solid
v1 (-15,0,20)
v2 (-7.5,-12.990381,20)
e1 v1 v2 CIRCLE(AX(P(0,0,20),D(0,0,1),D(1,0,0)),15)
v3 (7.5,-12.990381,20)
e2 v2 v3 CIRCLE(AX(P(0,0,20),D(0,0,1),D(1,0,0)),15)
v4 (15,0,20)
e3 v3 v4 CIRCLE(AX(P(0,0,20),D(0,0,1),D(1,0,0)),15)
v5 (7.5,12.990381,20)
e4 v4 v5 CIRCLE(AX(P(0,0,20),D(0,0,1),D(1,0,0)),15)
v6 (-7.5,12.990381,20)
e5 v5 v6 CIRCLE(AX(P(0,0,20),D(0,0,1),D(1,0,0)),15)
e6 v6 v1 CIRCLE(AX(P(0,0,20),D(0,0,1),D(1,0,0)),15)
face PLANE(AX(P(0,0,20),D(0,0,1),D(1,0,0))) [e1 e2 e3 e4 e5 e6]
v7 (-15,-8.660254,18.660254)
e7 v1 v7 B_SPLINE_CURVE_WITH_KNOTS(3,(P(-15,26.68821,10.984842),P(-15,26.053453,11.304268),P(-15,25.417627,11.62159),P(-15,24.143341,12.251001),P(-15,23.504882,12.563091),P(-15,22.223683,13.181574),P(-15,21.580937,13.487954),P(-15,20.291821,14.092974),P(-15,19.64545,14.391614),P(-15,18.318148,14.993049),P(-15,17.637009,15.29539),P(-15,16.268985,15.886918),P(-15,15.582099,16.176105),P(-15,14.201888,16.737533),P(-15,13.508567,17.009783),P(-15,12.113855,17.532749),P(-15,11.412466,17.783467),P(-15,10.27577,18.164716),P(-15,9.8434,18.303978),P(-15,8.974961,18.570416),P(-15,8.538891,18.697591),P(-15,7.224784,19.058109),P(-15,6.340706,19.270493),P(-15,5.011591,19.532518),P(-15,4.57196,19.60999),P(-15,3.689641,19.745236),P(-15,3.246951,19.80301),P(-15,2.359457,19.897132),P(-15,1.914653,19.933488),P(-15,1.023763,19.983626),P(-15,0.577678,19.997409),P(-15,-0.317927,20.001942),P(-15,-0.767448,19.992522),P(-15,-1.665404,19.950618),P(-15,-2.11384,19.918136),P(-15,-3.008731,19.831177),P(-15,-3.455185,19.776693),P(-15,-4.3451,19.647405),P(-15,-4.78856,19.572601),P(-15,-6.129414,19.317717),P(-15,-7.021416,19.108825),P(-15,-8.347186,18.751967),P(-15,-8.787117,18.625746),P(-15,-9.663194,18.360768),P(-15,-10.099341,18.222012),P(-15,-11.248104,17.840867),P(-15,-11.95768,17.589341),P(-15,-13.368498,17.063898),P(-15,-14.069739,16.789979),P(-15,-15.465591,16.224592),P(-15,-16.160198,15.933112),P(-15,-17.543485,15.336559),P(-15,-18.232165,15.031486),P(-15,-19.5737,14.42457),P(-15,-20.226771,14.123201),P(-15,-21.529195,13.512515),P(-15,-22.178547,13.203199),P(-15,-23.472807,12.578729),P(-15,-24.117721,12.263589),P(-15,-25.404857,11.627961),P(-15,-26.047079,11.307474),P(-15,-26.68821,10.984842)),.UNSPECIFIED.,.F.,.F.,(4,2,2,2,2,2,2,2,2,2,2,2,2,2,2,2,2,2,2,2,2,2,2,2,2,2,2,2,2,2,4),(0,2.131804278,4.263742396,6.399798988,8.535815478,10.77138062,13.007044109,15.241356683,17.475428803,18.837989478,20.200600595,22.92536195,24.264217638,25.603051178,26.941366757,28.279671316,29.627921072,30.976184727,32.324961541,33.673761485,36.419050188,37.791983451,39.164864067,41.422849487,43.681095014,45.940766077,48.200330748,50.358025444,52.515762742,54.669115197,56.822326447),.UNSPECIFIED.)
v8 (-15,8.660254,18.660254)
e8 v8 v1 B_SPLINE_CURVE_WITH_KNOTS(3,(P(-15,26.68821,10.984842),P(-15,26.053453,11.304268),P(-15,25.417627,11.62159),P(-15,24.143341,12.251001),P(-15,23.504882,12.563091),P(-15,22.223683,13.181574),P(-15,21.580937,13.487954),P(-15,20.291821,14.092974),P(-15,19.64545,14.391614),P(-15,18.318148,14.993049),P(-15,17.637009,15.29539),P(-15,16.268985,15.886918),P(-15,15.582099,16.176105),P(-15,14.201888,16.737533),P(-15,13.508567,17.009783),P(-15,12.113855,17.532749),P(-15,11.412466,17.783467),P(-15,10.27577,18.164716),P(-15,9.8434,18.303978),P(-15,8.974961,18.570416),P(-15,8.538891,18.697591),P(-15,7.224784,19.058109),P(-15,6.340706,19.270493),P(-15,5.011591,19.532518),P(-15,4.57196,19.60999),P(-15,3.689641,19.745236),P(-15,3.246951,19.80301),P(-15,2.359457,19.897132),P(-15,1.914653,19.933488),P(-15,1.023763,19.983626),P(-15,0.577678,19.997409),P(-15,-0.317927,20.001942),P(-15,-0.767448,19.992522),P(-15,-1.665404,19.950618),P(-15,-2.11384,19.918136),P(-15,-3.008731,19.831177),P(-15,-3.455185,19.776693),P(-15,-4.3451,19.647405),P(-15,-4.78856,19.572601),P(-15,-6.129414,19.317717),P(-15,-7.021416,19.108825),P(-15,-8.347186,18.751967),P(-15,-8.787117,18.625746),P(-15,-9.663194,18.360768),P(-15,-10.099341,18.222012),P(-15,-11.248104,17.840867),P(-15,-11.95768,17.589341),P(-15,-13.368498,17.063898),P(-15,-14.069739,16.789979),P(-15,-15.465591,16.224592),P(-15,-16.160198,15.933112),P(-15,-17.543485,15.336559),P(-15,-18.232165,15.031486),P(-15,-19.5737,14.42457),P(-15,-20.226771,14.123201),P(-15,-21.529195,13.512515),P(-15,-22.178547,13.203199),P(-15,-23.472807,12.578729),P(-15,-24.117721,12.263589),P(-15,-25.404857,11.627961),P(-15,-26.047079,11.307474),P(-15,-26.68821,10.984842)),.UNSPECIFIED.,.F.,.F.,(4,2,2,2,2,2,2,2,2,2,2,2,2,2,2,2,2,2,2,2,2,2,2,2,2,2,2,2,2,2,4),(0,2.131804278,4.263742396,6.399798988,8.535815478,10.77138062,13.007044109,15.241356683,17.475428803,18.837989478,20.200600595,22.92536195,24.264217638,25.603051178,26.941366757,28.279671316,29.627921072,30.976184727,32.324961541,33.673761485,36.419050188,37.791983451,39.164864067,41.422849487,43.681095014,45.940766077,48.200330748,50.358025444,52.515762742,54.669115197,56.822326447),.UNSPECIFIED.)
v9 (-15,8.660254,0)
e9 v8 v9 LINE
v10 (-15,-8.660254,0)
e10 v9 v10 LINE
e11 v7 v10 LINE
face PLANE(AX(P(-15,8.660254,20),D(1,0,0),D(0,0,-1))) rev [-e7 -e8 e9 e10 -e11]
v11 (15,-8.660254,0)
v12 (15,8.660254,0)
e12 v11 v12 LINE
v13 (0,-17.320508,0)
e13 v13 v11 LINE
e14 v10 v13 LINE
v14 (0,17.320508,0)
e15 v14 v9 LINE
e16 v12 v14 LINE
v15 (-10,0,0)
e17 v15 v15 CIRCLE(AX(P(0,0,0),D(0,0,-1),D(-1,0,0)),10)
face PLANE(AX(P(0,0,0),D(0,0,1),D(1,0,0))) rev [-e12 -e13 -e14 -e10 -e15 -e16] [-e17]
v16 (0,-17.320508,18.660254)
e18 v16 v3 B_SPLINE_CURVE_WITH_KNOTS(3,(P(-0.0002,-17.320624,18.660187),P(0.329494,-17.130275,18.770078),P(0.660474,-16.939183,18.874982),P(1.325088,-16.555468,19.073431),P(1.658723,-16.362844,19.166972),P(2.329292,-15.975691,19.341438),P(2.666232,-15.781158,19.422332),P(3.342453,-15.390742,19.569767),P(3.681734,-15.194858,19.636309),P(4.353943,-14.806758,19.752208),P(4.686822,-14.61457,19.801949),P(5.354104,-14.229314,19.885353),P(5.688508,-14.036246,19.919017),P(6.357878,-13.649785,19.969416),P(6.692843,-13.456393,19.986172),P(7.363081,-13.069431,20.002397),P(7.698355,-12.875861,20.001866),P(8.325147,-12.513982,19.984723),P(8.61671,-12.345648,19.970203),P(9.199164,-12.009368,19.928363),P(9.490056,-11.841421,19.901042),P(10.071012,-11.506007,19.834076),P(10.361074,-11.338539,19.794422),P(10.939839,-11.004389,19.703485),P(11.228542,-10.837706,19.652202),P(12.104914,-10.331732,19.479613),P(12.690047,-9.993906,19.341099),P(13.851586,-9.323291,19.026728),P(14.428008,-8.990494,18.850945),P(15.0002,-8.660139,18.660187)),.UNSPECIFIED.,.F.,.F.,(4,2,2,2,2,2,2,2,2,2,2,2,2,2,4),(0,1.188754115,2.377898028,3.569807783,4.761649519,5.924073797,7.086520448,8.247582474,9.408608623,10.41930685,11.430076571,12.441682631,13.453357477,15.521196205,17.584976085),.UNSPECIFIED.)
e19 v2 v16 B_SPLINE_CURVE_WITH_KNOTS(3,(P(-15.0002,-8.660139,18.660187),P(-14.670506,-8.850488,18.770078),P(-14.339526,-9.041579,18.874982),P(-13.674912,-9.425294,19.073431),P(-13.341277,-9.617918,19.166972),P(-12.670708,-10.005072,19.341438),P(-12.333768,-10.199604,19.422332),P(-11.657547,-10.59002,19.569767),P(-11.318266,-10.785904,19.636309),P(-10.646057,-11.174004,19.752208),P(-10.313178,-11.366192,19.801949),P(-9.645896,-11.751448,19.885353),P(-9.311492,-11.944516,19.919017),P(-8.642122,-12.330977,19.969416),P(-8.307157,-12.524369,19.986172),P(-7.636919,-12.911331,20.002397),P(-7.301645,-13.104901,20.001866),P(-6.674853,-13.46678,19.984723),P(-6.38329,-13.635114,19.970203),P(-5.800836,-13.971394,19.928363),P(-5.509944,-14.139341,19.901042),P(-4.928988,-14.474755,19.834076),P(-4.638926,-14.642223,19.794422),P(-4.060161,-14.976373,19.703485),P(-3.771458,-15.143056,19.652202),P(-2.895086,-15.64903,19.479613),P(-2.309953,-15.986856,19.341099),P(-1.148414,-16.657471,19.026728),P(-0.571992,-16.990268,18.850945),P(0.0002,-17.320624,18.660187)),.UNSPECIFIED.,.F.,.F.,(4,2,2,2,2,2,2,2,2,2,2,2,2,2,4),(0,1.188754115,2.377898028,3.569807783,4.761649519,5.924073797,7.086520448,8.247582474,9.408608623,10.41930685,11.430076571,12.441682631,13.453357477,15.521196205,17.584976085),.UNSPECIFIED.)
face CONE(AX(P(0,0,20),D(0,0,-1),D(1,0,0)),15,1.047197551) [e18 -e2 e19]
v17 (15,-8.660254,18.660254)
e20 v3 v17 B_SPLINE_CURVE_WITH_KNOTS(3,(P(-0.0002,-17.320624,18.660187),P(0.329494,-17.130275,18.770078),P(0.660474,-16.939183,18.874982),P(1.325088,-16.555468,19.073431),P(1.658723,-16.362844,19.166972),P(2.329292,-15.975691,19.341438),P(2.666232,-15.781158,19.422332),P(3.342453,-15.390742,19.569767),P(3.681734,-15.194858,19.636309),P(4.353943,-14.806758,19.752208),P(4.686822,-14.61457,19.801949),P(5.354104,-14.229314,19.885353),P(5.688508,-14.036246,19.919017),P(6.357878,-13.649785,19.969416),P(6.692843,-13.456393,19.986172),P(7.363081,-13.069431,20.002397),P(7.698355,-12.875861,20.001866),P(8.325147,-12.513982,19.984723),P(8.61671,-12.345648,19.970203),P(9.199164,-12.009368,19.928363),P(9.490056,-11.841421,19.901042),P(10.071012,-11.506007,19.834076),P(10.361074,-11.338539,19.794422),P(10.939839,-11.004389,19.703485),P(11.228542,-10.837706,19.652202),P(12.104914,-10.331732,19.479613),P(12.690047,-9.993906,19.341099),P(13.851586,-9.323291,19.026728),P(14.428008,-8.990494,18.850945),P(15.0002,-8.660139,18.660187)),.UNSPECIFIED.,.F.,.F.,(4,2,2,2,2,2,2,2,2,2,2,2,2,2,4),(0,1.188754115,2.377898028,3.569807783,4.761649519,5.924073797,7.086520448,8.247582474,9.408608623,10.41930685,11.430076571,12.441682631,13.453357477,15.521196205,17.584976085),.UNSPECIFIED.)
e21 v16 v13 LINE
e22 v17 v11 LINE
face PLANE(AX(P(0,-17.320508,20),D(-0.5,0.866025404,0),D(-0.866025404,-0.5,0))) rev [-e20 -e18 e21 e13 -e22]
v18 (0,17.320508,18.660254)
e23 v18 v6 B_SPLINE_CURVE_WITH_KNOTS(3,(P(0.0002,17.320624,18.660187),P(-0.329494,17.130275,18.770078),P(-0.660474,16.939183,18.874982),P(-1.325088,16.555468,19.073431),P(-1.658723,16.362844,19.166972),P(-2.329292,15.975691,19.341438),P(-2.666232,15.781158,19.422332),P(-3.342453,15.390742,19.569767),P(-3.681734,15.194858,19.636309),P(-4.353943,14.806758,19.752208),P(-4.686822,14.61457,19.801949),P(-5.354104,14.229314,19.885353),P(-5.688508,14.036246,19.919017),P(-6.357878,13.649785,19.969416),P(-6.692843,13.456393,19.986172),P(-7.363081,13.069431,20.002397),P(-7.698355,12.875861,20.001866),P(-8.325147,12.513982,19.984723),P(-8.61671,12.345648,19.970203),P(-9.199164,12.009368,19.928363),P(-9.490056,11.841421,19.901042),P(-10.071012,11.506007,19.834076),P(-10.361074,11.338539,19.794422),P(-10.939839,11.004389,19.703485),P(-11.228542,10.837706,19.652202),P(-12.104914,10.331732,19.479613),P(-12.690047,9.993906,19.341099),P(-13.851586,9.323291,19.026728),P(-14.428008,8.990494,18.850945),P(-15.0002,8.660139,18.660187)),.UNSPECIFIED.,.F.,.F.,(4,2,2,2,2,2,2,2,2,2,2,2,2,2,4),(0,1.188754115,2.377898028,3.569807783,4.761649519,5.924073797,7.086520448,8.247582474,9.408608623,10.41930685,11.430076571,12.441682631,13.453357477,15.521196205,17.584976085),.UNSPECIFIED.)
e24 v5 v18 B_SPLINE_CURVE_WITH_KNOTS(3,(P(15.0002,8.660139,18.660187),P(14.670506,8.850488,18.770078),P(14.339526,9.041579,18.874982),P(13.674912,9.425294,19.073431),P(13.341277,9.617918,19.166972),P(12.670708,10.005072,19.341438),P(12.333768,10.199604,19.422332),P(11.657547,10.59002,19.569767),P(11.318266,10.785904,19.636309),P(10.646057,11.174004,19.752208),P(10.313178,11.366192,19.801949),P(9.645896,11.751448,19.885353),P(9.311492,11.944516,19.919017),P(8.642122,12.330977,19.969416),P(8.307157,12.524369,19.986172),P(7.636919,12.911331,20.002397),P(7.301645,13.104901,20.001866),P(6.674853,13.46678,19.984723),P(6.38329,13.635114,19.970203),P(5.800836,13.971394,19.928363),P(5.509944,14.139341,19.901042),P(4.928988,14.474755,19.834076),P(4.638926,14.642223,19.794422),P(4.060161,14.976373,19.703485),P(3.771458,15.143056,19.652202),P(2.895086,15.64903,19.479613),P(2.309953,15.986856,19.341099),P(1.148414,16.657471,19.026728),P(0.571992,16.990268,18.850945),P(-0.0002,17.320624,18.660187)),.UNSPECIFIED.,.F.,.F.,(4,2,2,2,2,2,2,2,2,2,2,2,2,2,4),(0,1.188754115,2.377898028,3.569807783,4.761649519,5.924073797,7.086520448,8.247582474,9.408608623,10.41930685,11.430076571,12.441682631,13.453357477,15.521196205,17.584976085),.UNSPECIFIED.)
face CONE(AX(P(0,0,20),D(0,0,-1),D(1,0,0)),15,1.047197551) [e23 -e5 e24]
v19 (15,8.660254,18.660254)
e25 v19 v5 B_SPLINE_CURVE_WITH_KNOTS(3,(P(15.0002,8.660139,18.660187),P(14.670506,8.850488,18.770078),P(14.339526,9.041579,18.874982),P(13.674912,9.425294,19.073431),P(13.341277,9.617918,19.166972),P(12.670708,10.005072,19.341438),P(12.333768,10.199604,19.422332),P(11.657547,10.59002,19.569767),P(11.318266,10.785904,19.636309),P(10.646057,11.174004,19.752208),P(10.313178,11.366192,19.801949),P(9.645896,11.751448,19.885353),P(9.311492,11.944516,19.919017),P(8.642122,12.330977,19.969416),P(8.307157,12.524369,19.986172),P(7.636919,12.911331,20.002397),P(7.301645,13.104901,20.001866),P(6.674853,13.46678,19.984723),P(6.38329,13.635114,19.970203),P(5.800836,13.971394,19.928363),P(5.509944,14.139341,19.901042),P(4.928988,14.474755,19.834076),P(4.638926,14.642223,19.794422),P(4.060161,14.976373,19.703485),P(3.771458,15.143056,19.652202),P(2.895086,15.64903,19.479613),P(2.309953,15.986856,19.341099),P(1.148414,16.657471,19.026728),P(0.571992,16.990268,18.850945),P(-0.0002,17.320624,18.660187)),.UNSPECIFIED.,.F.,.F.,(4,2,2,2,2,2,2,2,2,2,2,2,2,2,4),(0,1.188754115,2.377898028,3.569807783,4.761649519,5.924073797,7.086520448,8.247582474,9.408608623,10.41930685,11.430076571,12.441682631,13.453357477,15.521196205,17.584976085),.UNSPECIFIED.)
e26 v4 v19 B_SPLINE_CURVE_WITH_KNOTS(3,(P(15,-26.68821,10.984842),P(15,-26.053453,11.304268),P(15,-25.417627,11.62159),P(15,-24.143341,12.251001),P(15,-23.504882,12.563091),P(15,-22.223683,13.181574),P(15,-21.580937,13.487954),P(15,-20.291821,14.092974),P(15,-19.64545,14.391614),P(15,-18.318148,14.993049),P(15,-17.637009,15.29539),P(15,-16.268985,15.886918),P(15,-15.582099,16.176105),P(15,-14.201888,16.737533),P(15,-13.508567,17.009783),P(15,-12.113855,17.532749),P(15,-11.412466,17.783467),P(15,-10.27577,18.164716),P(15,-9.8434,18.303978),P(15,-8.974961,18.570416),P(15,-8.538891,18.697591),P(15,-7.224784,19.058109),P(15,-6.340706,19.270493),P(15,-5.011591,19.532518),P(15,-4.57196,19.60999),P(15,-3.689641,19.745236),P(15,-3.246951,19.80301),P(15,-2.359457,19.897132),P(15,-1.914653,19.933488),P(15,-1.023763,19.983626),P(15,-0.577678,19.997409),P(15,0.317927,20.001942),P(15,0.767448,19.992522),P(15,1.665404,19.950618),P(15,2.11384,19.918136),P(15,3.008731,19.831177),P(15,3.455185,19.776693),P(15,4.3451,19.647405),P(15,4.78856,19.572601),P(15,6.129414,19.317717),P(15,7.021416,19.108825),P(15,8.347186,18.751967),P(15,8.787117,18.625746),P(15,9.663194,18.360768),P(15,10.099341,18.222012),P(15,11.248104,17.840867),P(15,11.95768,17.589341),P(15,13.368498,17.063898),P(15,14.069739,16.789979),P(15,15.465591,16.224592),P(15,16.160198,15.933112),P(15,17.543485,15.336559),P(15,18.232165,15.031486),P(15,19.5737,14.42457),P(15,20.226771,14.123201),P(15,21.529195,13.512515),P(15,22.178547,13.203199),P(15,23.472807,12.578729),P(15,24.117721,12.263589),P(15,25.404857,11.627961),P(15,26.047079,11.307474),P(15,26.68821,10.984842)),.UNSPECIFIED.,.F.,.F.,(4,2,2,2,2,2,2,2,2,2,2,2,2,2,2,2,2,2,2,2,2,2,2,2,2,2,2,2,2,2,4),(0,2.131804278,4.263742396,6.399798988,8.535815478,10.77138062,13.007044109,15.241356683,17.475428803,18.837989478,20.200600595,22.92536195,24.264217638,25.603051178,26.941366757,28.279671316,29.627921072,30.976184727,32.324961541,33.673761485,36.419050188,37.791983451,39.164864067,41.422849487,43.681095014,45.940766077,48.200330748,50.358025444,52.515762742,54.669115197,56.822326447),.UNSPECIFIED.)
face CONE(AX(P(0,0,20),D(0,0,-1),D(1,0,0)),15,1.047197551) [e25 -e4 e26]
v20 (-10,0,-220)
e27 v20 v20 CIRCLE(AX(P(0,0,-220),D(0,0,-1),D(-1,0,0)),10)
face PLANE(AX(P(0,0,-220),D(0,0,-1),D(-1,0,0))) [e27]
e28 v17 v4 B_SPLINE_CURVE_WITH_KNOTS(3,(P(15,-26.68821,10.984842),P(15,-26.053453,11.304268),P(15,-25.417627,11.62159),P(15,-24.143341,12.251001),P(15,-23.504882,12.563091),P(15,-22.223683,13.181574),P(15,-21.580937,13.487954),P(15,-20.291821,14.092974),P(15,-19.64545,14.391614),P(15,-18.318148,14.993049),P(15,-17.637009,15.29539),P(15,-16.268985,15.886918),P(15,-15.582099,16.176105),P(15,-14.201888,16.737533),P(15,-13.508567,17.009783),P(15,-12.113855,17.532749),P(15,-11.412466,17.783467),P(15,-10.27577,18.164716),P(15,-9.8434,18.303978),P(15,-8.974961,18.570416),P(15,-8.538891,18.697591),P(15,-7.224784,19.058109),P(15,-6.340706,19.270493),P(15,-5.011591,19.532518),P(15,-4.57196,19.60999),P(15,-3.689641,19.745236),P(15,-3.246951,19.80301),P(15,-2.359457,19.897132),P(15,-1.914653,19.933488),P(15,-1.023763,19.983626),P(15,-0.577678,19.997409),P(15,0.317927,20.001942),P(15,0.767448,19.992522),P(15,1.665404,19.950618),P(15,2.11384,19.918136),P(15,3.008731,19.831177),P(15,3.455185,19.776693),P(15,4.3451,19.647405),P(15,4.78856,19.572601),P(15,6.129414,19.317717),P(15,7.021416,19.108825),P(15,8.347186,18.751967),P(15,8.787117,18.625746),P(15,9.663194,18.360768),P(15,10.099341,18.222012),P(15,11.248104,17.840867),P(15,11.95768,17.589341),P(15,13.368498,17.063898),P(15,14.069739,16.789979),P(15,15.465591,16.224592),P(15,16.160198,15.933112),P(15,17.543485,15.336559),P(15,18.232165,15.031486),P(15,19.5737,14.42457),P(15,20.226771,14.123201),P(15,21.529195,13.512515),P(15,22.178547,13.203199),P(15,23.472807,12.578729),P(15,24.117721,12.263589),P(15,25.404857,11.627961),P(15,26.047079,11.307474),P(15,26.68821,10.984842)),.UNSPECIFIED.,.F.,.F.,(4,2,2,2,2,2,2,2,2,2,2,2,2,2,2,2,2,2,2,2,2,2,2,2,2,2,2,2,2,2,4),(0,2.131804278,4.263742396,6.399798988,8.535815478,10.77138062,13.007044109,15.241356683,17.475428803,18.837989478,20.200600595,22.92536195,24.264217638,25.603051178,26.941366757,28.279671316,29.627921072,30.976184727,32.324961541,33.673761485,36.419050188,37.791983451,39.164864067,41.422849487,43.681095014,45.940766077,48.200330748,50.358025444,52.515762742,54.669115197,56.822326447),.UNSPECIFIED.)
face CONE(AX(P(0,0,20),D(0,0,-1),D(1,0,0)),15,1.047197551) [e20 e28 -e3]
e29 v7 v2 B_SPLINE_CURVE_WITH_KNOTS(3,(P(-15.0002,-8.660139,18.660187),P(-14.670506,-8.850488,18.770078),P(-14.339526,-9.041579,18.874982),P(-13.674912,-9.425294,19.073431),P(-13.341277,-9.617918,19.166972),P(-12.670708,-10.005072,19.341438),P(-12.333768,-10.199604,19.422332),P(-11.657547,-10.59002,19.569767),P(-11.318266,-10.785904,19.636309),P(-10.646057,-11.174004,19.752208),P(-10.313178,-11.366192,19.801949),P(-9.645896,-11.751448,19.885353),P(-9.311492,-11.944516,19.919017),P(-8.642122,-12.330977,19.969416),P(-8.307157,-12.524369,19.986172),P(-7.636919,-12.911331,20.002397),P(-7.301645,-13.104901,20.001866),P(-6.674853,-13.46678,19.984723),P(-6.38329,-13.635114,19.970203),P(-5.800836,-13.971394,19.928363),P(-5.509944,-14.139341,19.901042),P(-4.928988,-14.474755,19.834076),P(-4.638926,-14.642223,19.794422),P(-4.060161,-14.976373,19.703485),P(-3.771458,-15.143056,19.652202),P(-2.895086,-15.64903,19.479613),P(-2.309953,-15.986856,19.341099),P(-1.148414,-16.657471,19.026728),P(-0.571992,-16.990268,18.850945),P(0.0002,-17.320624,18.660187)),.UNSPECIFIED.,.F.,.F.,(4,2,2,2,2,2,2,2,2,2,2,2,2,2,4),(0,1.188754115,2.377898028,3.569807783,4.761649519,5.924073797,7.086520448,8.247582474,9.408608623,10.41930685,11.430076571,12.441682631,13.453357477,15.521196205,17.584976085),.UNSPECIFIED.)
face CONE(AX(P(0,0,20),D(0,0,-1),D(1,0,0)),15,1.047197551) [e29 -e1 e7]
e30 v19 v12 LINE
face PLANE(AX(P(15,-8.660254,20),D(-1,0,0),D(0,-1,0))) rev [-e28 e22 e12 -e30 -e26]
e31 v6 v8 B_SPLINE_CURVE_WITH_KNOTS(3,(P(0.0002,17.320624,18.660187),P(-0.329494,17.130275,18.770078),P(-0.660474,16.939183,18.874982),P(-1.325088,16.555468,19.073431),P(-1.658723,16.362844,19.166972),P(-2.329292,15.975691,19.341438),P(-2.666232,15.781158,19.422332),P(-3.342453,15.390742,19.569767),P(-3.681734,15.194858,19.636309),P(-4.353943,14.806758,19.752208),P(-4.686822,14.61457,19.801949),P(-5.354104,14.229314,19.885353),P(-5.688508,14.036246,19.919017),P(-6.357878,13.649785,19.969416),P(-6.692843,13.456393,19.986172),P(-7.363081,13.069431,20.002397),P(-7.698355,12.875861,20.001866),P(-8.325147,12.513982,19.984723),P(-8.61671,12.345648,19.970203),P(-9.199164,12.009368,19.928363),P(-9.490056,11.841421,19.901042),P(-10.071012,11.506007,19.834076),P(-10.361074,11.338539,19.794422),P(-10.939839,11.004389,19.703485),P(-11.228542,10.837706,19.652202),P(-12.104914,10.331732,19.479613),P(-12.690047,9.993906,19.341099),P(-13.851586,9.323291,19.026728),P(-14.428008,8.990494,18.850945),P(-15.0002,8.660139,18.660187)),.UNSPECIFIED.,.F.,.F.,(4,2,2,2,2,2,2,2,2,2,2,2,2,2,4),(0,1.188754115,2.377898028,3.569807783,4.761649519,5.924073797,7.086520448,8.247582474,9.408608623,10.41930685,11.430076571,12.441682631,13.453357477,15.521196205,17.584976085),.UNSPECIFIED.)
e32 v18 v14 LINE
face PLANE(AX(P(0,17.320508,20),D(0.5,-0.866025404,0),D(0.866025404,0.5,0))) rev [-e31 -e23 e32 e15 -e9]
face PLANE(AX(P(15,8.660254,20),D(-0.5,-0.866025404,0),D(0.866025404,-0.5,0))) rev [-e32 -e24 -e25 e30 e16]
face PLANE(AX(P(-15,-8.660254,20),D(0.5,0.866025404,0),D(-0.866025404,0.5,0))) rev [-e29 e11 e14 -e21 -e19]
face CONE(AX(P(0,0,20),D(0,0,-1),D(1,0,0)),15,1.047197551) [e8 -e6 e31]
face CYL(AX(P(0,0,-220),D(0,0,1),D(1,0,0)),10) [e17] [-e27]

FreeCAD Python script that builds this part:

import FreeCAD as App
import Part
import Sketcher
Q = App.Units.Quantity


def faces_at(feature, points):
    """Names of the faces that lie closest to the given points."""
    faces = feature.Shape.Faces
    near = lambda p: min(range(len(faces)), key=lambda i: faces[i].distToShape(Part.Vertex(*p))[0])
    return sorted({f"Face{near(p) + 1}" for p in points})


def add_polygon(sketch, points):
    """Adds a closed chain of lines whose ends are joined by coincident constraints."""
    first, n = sketch.GeometryCount, len(points)
    for a, b in zip(points, points[1:] + points[:1]):
        sketch.addGeometry(Part.LineSegment(App.Vector(*a, 0), App.Vector(*b, 0)), False)
    for i in range(n):
        sketch.addConstraint(Sketcher.Constraint("Coincident", first + i, 2, first + (i + 1) % n, 1))

doc = App.newDocument("Part")
body = doc.addObject("PartDesign::Body", "Body")

# Sketch on XY plane
sketch1 = body.newObject("Sketcher::SketchObject", "Sketch")
sketch1.AttachmentSupport = (doc.getObject("XY_Plane"), [""])
sketch1.MapMode = "FlatFace"
add_polygon(sketch1, [(0, 17), (-15, 9), (-15, -9), (0, -17), (15, -9), (15, 9)])  # lines 0-5
sketch1.addConstraint([
    Sketcher.Constraint("Vertical", 1),
    Sketcher.Constraint("Vertical", 4),
    Sketcher.Constraint("Symmetric", 0, 2, 3, 2, -1, 1),
    Sketcher.Constraint("Symmetric", 2, 2, 5, 2, -1, 1),
    Sketcher.Constraint("PointOnObject", 2, 2, -2),
    Sketcher.Constraint("Parallel", 2, 5),
    Sketcher.Constraint("Horizontal", 1, 2, 3, 2),
    Sketcher.Constraint("Angle", 0, Q("-150 deg")),
    Sketcher.Constraint("DistanceX", 0, 2, -1, 1, Q("15 mm")),
    Sketcher.Constraint("DistanceY", 1, 2, 1, 1, Q("17.320508 mm")),
])
pad1 = body.newObject("PartDesign::Pad", "Pad")
pad1.Profile = sketch1
pad1.Length = 20
body2 = doc.addObject("PartDesign::Body", "Body001")

# Sketch on XY plane
sketch2 = body2.newObject("Sketcher::SketchObject", "Sketch001")
sketch2.AttachmentSupport = (doc.getObject("XY_Plane001"), [""])
sketch2.MapMode = "FlatFace"
sketch2.AttachmentOffset = App.Placement(App.Vector(0, 0, 20), App.Rotation())
add_polygon(sketch2, [(-30, 32), (-30, -32), (30, -32), (30, 32)])  # lines 0-3
sketch2.addGeometry(Part.Circle(App.Vector(0, 0, 0), App.Vector(0, 0, 1), 15), False)  # 4
sketch2.addConstraint([
    Sketcher.Constraint("Vertical", 0),
    Sketcher.Constraint("Horizontal", 1),
    Sketcher.Constraint("Vertical", 2),
    Sketcher.Constraint("Horizontal", 3),
    Sketcher.Constraint("Coincident", 4, 3, -1, 1),
    Sketcher.Constraint("Symmetric", 0, 2, 2, 2, -1, 1),
    Sketcher.Constraint("Diameter", 4, Q("30 mm")),
    Sketcher.Constraint("DistanceX", 1, 1, 1, 2, Q("59.32 mm")),
    Sketcher.Constraint("DistanceY", 0, 2, 0, 1, Q("63.962 mm")),
])
pad2 = body2.newObject("PartDesign::Pad", "Pad001")
pad2.Profile = sketch2
pad2.Length = 5
pad2.Reversed = True
doc.recompute()

datumplane = body2.newObject("PartDesign::Plane", "DatumPlane")
datumplane.AttachmentSupport = (doc.getObject("XY_Plane001"), [""])
datumplane.MapMode = "FlatFace"
datumplane.AttachmentOffset = App.Placement(App.Vector(0, 0, 20), App.Rotation())
draft = body2.newObject("PartDesign::Draft", "Draft")
draft.Base = (pad2, faces_at(pad2, [
    (0, -31.981, 17.5),
    (29.66, 0, 17.5),
    (0, 31.981, 17.5),
    (-29.66, 0, 17.5),
    (-15, 0, 17.5),
]))
draft.NeutralPlane = (datumplane, [""])
draft.Angle = 60
draft.Reversed = True
doc.recompute()

boolean = body.newObject("PartDesign::Boolean", "Boolean")
boolean.Type = "Cut"
boolean.addObjects([body2])

# Sketch on XY plane
sketch3 = body.newObject("Sketcher::SketchObject", "Sketch002")
sketch3.AttachmentSupport = (doc.getObject("XY_Plane"), [""])
sketch3.MapMode = "FlatFace"
sketch3.addGeometry(Part.Circle(App.Vector(0, 0, 0), App.Vector(0, 0, 1), 10), False)
sketch3.addConstraint([
    Sketcher.Constraint("Coincident", 0, 3, -1, 1),
    Sketcher.Constraint("Diameter", 0, Q("20 mm")),
])
pad3 = body.newObject("PartDesign::Pad", "Pad002")
pad3.Profile = sketch3
pad3.Length = 220
pad3.Reversed = True

doc.recompute()
